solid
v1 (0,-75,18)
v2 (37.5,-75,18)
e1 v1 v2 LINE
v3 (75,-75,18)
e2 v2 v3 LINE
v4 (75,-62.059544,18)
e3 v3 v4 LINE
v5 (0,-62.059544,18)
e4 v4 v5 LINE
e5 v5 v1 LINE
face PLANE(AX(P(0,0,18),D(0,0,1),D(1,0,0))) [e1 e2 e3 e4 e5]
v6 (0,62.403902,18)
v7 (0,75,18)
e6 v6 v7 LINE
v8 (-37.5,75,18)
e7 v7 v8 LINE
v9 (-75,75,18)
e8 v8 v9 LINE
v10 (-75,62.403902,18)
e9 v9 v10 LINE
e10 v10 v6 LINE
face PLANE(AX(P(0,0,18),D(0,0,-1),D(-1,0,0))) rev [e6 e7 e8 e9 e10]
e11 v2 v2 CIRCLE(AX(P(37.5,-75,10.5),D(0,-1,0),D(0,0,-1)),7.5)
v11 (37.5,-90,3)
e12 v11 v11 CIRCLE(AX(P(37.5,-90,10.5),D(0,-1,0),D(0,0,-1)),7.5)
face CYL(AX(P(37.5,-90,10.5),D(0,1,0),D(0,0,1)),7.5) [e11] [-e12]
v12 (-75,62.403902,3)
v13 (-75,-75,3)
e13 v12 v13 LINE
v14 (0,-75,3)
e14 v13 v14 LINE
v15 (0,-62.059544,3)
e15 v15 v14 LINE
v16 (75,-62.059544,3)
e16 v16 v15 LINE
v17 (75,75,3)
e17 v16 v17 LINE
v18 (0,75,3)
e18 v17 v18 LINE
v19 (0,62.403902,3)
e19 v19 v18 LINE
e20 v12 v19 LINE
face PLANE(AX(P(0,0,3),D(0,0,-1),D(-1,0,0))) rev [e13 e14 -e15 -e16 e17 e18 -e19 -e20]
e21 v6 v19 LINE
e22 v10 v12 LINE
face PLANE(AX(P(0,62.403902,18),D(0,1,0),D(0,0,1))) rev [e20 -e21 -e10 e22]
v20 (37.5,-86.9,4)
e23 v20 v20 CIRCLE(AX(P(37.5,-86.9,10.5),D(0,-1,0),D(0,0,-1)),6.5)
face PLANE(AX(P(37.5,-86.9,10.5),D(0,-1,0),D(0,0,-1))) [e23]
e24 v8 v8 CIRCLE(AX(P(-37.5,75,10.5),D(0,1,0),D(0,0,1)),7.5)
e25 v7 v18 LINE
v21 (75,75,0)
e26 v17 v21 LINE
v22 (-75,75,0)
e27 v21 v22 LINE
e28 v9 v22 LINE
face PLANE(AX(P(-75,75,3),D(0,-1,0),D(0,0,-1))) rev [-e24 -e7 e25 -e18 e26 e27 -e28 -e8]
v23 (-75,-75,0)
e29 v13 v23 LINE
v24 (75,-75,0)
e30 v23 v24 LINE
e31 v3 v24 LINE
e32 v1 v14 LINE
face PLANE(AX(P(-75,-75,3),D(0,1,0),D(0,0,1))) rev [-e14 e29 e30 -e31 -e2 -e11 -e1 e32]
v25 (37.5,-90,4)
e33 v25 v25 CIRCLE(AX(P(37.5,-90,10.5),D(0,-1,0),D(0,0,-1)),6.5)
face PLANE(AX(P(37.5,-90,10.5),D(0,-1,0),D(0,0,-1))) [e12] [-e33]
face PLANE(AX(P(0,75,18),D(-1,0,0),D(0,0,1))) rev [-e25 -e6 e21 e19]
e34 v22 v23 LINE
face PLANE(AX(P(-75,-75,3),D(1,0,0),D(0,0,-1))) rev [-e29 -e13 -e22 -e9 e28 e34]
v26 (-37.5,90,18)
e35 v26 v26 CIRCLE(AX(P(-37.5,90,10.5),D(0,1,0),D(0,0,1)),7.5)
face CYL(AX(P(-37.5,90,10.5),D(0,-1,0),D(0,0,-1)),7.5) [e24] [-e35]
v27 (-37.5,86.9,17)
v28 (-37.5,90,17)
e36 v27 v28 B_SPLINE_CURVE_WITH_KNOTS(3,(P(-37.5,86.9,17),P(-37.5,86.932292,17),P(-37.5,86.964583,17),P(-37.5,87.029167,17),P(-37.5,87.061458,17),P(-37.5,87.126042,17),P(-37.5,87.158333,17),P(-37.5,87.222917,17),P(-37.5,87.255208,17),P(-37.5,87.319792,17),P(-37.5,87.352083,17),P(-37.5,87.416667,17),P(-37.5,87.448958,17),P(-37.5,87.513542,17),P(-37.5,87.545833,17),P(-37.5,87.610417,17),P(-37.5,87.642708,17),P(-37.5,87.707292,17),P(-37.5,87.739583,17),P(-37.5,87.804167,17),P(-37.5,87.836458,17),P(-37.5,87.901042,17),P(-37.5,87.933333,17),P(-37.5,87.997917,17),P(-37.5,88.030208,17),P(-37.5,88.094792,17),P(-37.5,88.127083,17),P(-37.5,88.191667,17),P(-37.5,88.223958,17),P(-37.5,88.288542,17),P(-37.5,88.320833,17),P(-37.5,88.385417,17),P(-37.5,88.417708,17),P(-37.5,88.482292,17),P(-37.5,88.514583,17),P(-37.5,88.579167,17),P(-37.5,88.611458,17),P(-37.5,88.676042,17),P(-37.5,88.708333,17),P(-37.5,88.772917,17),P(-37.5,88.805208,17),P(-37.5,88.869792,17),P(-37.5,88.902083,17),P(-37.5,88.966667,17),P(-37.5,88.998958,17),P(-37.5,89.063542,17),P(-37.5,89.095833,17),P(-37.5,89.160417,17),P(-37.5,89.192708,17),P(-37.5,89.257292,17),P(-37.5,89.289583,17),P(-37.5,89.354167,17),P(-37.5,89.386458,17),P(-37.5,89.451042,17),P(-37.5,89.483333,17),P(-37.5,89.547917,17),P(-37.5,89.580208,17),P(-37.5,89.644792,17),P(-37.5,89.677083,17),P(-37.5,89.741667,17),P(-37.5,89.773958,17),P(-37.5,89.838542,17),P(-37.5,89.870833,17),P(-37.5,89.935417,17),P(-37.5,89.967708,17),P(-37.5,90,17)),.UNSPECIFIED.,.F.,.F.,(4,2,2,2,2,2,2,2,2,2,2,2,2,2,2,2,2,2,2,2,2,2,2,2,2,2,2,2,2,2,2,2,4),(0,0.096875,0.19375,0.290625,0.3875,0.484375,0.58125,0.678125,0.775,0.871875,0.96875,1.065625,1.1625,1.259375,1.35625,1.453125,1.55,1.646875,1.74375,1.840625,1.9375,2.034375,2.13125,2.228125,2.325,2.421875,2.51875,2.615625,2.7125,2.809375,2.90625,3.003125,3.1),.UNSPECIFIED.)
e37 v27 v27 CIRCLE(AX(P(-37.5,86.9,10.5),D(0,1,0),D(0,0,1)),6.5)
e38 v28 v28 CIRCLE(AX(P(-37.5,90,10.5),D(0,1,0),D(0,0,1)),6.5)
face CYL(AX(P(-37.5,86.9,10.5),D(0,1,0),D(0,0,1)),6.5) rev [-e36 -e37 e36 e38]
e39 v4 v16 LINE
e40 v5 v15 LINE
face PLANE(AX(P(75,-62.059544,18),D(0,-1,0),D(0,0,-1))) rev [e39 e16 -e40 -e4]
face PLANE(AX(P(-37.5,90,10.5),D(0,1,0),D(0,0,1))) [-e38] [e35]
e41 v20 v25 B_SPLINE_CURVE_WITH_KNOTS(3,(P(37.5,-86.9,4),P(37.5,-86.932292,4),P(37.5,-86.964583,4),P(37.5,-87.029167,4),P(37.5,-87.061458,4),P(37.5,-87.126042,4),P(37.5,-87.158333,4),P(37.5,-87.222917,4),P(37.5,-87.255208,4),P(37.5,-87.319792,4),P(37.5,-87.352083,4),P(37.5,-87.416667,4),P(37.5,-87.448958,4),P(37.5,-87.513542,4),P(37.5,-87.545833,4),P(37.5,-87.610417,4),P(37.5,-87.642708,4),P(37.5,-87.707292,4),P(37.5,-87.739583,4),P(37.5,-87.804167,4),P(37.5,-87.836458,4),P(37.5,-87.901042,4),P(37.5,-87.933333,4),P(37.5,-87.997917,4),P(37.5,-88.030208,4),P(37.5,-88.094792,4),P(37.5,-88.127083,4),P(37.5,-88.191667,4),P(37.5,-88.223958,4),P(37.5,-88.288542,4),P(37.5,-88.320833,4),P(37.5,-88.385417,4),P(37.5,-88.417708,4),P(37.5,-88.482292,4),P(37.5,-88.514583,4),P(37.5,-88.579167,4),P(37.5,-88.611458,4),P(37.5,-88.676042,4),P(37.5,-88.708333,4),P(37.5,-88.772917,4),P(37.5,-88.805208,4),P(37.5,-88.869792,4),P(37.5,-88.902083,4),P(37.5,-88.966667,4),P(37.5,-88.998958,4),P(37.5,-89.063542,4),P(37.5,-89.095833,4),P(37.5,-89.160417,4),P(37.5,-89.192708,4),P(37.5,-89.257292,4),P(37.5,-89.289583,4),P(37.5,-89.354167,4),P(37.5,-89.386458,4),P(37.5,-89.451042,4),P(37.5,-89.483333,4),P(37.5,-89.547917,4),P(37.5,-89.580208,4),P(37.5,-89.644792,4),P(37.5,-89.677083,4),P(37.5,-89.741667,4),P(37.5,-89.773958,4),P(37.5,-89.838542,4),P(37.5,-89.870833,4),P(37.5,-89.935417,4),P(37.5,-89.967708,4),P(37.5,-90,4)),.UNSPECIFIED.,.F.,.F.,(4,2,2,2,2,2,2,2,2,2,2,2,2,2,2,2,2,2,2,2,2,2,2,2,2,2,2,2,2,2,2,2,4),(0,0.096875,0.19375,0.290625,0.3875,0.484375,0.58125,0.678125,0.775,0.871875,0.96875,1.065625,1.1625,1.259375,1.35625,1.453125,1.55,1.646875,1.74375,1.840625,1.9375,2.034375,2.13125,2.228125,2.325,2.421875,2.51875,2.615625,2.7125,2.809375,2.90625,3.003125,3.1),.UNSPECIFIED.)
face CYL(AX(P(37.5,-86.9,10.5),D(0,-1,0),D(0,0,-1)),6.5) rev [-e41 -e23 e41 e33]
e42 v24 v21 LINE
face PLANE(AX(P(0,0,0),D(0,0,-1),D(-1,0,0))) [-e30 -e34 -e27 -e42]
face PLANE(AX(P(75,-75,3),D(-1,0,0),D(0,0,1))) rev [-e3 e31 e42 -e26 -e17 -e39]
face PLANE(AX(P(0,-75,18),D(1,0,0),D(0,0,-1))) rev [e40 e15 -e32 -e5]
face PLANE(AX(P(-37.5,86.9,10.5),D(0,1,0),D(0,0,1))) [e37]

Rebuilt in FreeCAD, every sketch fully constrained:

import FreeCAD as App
import Part
import Sketcher
from FreeCAD import Vector


def add_polygon(sketch, points):
    """Adds a closed chain of lines whose ends are joined by coincident constraints."""
    first, n = sketch.GeometryCount, len(points)
    for a, b in zip(points, points[1:] + points[:1]):
        sketch.addGeometry(Part.LineSegment(App.Vector(*a, 0), App.Vector(*b, 0)), False)
    for i in range(n):
        sketch.addConstraint(Sketcher.Constraint("Coincident", first + i, 2, first + (i + 1) % n, 1))

doc = App.newDocument("Part")
body = doc.addObject("PartDesign::Body", "Body")

# Sketch on XY plane
sketch1 = body.newObject("Sketcher::SketchObject", "Sketch")
sketch1.AttachmentSupport = (doc.getObject("XY_Plane"), [""])
sketch1.MapMode = "FlatFace"
add_polygon(sketch1, [(-75, 75), (-75, -75), (75, -75), (75, 75)])  # lines 0-3
sketch1.addConstraint([
    Sketcher.Constraint("Vertical", 0),
    Sketcher.Constraint("Horizontal", 1),
    Sketcher.Constraint("Vertical", 2),
    Sketcher.Constraint("Horizontal", 3),
    Sketcher.Constraint("Symmetric", 0, 2, 2, 2, -1, 1),
    Sketcher.Constraint("Equal", 3, 0),
    Sketcher.Constraint("DistanceX", 1, 1, 1, 2, 150.0),
])
pad1 = body.newObject("PartDesign::Pad", "Pad")
pad1.Profile = sketch1
pad1.Length = 3
body2 = doc.addObject("PartDesign::Body", "Body001")

# Sketch on XZ plane
sketch2 = body2.newObject("Sketcher::SketchObject", "Sketch001")
sketch2.AttachmentSupport = (doc.getObject("XZ_Plane001"), [""])
sketch2.MapMode = "FlatFace"
sketch2.AttachmentOffset = App.Placement(Vector(0, 0, 75), App.Rotation())
sketch2.addGeometry(Part.Circle(Vector(38, 10, 0), Vector(0, 0, 1), 8), False)
sketch2.addConstraint([
    Sketcher.Constraint("Diameter", 0, 15.0),
    Sketcher.Constraint("DistanceX", -1, 1, 0, 3, 37.5),
    Sketcher.Constraint("DistanceY", -1, 1, 0, 3, 10.5),
])
pad2 = body2.newObject("PartDesign::Pad", "Pad001")
pad2.Profile = sketch2
pad2.Length = 15

# Sketch on XZ plane
sketch3 = body2.newObject("Sketcher::SketchObject", "Sketch002")
sketch3.AttachmentSupport = (doc.getObject("XZ_Plane001"), [""])
sketch3.MapMode = "FlatFace"
sketch3.AttachmentOffset = App.Placement(Vector(0, 0, 90), App.Rotation())
sketch3.addGeometry(Part.Circle(Vector(38, 10, 0), Vector(0, 0, 1), 6), False)
sketch3.addConstraint([
    Sketcher.Constraint("Diameter", 0, 13.0),
    Sketcher.Constraint("DistanceX", -1, 1, 0, 3, 37.5),
    Sketcher.Constraint("DistanceY", -1, 1, 0, 3, 10.5),
])
pocket1 = body2.newObject("PartDesign::Pocket", "Pocket")
pocket1.Profile = sketch3
pocket1.Length = 3.1
body3 = doc.addObject("PartDesign::Body", "Body002")

# Sketch on XZ plane
sketch4 = body3.newObject("Sketcher::SketchObject", "Sketch003")
sketch4.AttachmentSupport = (doc.getObject("XZ_Plane002"), [""])
sketch4.MapMode = "FlatFace"
sketch4.AttachmentOffset = App.Placement(Vector(0, 0, -75), App.Rotation())
sketch4.addGeometry(Part.Circle(Vector(-38, 10, 0), Vector(0, 0, 1), 8), False)
sketch4.addConstraint([
    Sketcher.Constraint("Diameter", 0, 15.0),
    Sketcher.Constraint("DistanceX", 0, 3, -1, 1, 37.5),
    Sketcher.Constraint("DistanceY", -1, 1, 0, 3, 10.5),
])
pad3 = body3.newObject("PartDesign::Pad", "Pad002")
pad3.Profile = sketch4
pad3.Length = 15
pad3.Reversed = True

# Sketch on XZ plane
sketch5 = body3.newObject("Sketcher::SketchObject", "Sketch004")
sketch5.AttachmentSupport = (doc.getObject("XZ_Plane002"), [""])
sketch5.MapMode = "FlatFace"
sketch5.AttachmentOffset = App.Placement(Vector(0, 0, -90), App.Rotation())
sketch5.addGeometry(Part.Circle(Vector(-38, 10, 0), Vector(0, 0, 1), 6), False)
sketch5.addConstraint([
    Sketcher.Constraint("Diameter", 0, 13.0),
    Sketcher.Constraint("DistanceX", 0, 3, -1, 1, 37.5),
    Sketcher.Constraint("DistanceY", -1, 1, 0, 3, 10.5),
])
pocket2 = body3.newObject("PartDesign::Pocket", "Pocket001")
pocket2.Profile = sketch5
pocket2.Length = 3.1
pocket2.Reversed = True
body.AllowCompound = True
doc.recompute()

boolean = body.newObject("PartDesign::Boolean", "Boolean")
boolean.Type = "Fuse"
boolean.addObjects([body2])
doc.recompute()

boolean2 = body.newObject("PartDesign::Boolean", "Boolean001")
boolean2.Type = "Fuse"
boolean2.addObjects([body3])

# Sketch on XY plane
sketch6 = body.newObject("Sketcher::SketchObject", "Sketch005")
sketch6.AttachmentSupport = (doc.getObject("XY_Plane"), [""])
sketch6.MapMode = "FlatFace"
sketch6.AttachmentOffset = App.Placement(Vector(0, 0, 3), App.Rotation())
add_polygon(sketch6, [(-75, 75), (-75, 62), (0, 62), (0, 75)])  # lines 0-3
add_polygon(sketch6, [(0, -62), (0, -75), (75, -75), (75, -62)])  # lines 4-7
sketch6.addConstraint([
    Sketcher.Constraint("Vertical", 0),
    Sketcher.Constraint("Horizontal", 1),
    Sketcher.Constraint("Vertical", 2),
    Sketcher.Constraint("Horizontal", 3),
    Sketcher.Constraint("Vertical", 4),
    Sketcher.Constraint("Horizontal", 5),
    Sketcher.Constraint("Vertical", 6),
    Sketcher.Constraint("Horizontal", 7),
    Sketcher.Constraint("Symmetric", 2, 2, 4, 2, -1, 1),
    Sketcher.Constraint("PointOnObject", 1, 2, -2),
    Sketcher.Constraint("Equal", 3, 5),
    Sketcher.Constraint("DistanceX", 1, 1, 1, 2, 75.0),
    Sketcher.Constraint("DistanceY", -1, 1, 2, 2, 75.0),
    Sketcher.Constraint("DistanceY", 0, 2, 0, 1, 12.596098),
    Sketcher.Constraint("DistanceY", 4, 2, 4, 1, 12.940456),
])
pad4 = body.newObject("PartDesign::Pad", "Pad003")
pad4.Profile = sketch6
pad4.Length = 15

doc.recompute()
